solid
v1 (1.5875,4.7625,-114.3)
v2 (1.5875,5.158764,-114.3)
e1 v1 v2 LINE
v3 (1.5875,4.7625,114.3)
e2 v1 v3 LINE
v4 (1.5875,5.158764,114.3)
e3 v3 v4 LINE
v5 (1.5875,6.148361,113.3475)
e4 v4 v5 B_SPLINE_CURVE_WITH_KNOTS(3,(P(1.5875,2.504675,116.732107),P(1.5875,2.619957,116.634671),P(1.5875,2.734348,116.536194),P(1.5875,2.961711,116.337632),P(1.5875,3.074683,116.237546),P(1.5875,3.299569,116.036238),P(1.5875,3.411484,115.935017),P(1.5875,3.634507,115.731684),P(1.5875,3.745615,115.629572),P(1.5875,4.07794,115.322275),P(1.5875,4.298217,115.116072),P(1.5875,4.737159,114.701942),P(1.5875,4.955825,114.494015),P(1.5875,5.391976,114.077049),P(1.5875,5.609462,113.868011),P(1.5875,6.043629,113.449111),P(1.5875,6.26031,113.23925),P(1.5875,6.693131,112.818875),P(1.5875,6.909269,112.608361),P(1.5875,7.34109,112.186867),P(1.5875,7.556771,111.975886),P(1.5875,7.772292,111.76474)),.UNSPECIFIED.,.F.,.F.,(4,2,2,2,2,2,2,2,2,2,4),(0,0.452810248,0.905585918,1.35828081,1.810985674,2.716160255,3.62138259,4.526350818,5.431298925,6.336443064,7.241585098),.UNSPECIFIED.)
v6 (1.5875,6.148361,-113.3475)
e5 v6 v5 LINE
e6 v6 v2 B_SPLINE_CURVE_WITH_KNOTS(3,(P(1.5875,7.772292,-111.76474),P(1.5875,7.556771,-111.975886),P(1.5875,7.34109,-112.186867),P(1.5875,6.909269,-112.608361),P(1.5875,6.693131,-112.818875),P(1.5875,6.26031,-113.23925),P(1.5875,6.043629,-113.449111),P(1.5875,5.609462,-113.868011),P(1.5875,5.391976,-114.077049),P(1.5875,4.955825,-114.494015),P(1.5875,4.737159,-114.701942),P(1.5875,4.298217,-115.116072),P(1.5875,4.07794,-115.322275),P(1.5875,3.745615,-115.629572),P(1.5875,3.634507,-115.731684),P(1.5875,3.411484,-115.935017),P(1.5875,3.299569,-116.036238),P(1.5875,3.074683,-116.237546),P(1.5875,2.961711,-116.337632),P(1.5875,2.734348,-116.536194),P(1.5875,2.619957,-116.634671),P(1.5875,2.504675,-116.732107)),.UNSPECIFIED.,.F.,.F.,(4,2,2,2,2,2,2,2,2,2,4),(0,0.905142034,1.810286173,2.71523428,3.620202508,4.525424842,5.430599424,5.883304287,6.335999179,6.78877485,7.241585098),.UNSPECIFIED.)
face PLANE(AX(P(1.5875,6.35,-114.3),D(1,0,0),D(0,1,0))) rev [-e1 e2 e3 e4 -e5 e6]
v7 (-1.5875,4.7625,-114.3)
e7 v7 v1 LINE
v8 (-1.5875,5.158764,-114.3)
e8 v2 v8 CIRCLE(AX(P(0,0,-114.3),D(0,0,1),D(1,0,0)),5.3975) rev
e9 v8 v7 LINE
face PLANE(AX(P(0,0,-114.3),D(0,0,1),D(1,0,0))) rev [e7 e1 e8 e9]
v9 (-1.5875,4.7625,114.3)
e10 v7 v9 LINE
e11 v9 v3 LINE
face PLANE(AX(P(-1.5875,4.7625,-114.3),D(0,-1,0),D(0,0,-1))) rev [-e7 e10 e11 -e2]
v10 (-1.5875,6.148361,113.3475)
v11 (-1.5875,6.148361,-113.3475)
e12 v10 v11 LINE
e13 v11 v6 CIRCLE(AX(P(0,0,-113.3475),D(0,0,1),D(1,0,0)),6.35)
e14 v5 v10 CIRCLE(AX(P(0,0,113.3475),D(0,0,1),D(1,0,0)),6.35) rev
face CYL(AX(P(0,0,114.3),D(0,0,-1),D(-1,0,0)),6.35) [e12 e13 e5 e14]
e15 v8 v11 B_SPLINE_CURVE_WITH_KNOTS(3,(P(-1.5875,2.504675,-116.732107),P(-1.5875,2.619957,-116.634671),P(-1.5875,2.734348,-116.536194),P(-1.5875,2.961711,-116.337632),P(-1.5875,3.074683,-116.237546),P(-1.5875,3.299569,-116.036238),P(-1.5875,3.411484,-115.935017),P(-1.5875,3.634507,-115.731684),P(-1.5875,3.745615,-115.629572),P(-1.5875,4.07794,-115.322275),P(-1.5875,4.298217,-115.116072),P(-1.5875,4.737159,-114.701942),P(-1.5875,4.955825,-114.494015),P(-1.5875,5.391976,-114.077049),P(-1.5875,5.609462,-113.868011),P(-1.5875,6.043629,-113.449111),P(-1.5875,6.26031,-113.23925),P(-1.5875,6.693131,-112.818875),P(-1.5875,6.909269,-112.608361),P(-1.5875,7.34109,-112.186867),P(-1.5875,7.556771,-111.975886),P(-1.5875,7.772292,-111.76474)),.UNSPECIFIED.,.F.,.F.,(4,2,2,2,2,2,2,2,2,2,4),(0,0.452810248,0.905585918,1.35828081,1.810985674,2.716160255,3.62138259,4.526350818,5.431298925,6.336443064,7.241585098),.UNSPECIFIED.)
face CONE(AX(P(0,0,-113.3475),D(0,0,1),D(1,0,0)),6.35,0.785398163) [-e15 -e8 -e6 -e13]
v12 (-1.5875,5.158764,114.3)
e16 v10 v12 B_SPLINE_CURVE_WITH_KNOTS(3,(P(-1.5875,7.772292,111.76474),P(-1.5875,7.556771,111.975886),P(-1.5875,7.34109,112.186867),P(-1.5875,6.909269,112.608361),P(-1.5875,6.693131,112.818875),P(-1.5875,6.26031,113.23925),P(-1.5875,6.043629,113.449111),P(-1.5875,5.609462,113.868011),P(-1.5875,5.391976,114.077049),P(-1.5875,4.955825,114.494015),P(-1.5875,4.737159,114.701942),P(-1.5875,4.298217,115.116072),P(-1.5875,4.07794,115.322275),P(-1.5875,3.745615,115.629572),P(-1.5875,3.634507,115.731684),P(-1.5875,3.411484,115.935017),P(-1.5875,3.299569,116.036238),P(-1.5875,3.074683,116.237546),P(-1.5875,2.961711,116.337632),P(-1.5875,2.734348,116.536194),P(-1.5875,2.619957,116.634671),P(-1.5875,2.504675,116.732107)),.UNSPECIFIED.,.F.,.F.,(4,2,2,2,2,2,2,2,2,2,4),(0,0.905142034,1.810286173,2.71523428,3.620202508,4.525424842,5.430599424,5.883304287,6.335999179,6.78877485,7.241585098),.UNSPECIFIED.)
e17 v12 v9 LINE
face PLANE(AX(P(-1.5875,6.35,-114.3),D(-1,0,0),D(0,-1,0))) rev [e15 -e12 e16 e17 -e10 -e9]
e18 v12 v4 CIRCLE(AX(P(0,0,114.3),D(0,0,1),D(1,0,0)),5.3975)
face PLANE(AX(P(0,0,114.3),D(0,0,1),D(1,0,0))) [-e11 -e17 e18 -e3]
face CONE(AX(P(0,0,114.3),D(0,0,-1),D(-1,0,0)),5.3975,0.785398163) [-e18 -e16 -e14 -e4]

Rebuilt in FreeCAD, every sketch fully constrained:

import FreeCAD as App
import Part
import Sketcher

V = App.Vector
Q = App.Units.Quantity


def edges_at(feature, points):
    """Names of the edges that pass closest to the given points."""
    edges = feature.Shape.Edges
    near = lambda p: min(range(len(edges)), key=lambda i: edges[i].distToShape(Part.Vertex(*p))[0])
    return sorted({f"Edge{near(p) + 1}" for p in points})

doc = App.newDocument("Part")
body = doc.addObject("PartDesign::Body", "Body")

# Sketch on XY plane
sketch1 = doc.addObject("Sketcher::SketchObject", "Sketch")
body.addObject(sketch1)
sketch1.AttachmentSupport = (doc.XY_Plane, [""])
sketch1.MapMode = "FlatFace"
sketch1.addGeometry(Part.Circle(V(0, 0, 0), V(0, 0, 1), 6.35), False)
sketch1.addConstraint([
    Sketcher.Constraint("Coincident", 0, 3, -1, 1),
    Sketcher.Constraint("Diameter", 0, Q("0.5 in")),
])
pad1 = doc.addObject("PartDesign::Pad", "Pad")
body.addObject(pad1)
pad1.Profile = sketch1
pad1.Length = Q("9 in")
pad1.Midplane = True
doc.recompute()

chamfer = doc.addObject("PartDesign::Chamfer", "Chamfer")
body.addObject(chamfer)
chamfer.Base = (pad1, edges_at(pad1, [(-6.35, 0, -114.3), (-6.35, 0, 114.3)]))
chamfer.Size = Q("0.0375 in")

# Sketch on XY plane
sketch2 = doc.addObject("Sketcher::SketchObject", "Sketch001")
body.addObject(sketch2)
sketch2.AttachmentSupport = (doc.XY_Plane, [""])
sketch2.MapMode = "FlatFace"
sketch2.addGeometry([
    Part.LineSegment(V(-1.5875, 6.35, 0), V(-1.5875, 4.7625, 0)),
    Part.LineSegment(V(-1.5875, 4.7625, 0), V(1.5875, 4.7625, 0)),
    Part.LineSegment(V(1.5875, 4.7625, 0), V(1.5875, 6.35, 0)),
    Part.LineSegment(V(1.5875, 6.35, 0), V(-1.5875, 6.35, 0)),
], False)
sketch2.addConstraint([
    Sketcher.Constraint("Coincident", 0, 2, 1, 1),
    Sketcher.Constraint("Coincident", 1, 2, 2, 1),
    Sketcher.Constraint("Coincident", 2, 2, 3, 1),
    Sketcher.Constraint("Coincident", 3, 2, 0, 1),
    Sketcher.Constraint("Vertical", 0),
    Sketcher.Constraint("Horizontal", 1),
    Sketcher.Constraint("Vertical", 2),
    Sketcher.Constraint("Horizontal", 3),
    Sketcher.Constraint("DistanceX", 1, 1, 1, 2, Q("0.125 in")),
    Sketcher.Constraint("DistanceY", 0, 2, 0, 1, Q("0.0625 in")),
    Sketcher.Constraint("DistanceY", -1, 1, 2, 2, Q("0.25 in")),
    Sketcher.Constraint("DistanceX", 0, 2, -1, 1, Q("0.0625 in")),
])
pocket1 = doc.addObject("PartDesign::Pocket", "Pocket")
body.addObject(pocket1)
pocket1.Profile = sketch2
pocket1.Type = "ThroughAll"
pocket1.Midplane = True

doc.recompute()
